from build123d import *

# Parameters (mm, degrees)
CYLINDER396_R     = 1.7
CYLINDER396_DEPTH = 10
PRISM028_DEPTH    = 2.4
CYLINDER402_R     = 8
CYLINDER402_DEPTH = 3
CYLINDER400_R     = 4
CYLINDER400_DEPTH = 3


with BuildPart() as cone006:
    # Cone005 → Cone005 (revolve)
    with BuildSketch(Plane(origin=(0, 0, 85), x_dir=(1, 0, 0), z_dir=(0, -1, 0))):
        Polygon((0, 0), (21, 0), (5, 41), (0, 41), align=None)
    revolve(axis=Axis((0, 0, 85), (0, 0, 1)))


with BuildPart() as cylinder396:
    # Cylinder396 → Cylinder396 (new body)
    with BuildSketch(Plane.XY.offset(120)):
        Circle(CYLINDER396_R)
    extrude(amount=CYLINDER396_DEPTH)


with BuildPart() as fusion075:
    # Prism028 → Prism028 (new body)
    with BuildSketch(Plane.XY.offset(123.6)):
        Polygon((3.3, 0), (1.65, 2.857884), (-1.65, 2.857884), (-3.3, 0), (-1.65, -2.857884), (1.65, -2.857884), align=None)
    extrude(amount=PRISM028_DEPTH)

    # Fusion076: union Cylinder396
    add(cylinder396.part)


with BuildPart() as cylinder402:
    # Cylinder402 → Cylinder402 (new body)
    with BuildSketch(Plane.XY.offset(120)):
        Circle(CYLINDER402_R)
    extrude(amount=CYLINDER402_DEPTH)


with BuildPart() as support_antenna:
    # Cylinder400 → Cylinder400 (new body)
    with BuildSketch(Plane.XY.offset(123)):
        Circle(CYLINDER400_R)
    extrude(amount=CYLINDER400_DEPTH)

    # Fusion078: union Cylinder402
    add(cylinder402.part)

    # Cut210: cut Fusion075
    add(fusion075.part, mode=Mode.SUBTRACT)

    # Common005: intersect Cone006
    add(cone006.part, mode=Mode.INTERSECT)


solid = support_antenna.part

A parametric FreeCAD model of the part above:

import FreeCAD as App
import Part
import Sketcher
from FreeCAD import Vector
Q = App.Units.Quantity


def add_polygon(sketch, points):
    """Adds a closed chain of lines whose ends are joined by coincident constraints."""
    first, n = sketch.GeometryCount, len(points)
    for a, b in zip(points, points[1:] + points[:1]):
        sketch.addGeometry(Part.LineSegment(App.Vector(*a, 0), App.Vector(*b, 0)), False)
    for i in range(n):
        sketch.addConstraint(Sketcher.Constraint("Coincident", first + i, 2, first + (i + 1) % n, 1))

doc = App.newDocument("Part")
body = doc.addObject("PartDesign::Body", "Body")

# Sketch on XZ plane
sketch1 = body.newObject("Sketcher::SketchObject", "Sketch")
sketch1.AttachmentSupport = (doc.getObject("XZ_Plane"), [""])
sketch1.MapMode = "FlatFace"
add_polygon(sketch1, [(0, 85), (21, 85), (5, 126), (0, 126)])  # lines 0-3
sketch1.addConstraint(Sketcher.Constraint("Horizontal", 0))
sketch1.addConstraint(Sketcher.Constraint("Horizontal", 2))
sketch1.addConstraint(Sketcher.Constraint("Vertical", 3))
sketch1.addConstraint(Sketcher.Constraint("PointOnObject", 2, 2, -2))
sketch1.addConstraint(Sketcher.Constraint("DistanceX", 0, 1, 0, 2, 21.0))
sketch1.addConstraint(Sketcher.Constraint("DistanceX", 2, 2, 2, 1, 5.0))
sketch1.addConstraint(Sketcher.Constraint("DistanceY", 3, 2, 3, 1, 41.0))
sketch1.addConstraint(Sketcher.Constraint("DistanceY", -1, 1, 0, 2, 85.0))
revolution = body.newObject("PartDesign::Revolution", "Revolution")
revolution.Profile = sketch1
revolution.ReferenceAxis = (sketch1, ["V_Axis"])
revolution.Angle = 360
body2 = doc.addObject("PartDesign::Body", "Body001")

# Sketch on XY plane
sketch2 = body2.newObject("Sketcher::SketchObject", "Sketch001")
sketch2.AttachmentSupport = (doc.getObject("XY_Plane001"), [""])
sketch2.MapMode = "FlatFace"
sketch2.AttachmentOffset = App.Placement(Vector(0, 0, 120), App.Rotation())
sketch2.addGeometry(Part.Circle(Vector(0, 0, 0), Vector(0, 0, 1), 1.7), False)
sketch2.addConstraint(Sketcher.Constraint("Coincident", 0, 3, -1, 1))
sketch2.addConstraint(Sketcher.Constraint("Diameter", 0, 3.4))
pad1 = body2.newObject("PartDesign::Pad", "Pad")
pad1.Profile = sketch2
pad1.Length = 10
body3 = doc.addObject("PartDesign::Body", "Body002")

# Sketch on XY plane
sketch3 = body3.newObject("Sketcher::SketchObject", "Sketch002")
sketch3.AttachmentSupport = (doc.getObject("XY_Plane002"), [""])
sketch3.MapMode = "FlatFace"
sketch3.AttachmentOffset = App.Placement(Vector(0, 0, 123.6), App.Rotation())
add_polygon(sketch3, [(3.3, 0), (1.6, 2.9), (-1.6, 2.9), (-3.3, 0), (-1.6, -2.9), (1.6, -2.9)])  # lines 0-5
sketch3.addConstraint(Sketcher.Constraint("Horizontal", 1))
sketch3.addConstraint(Sketcher.Constraint("Horizontal", 4))
sketch3.addConstraint(Sketcher.Constraint("Symmetric", 0, 2, 3, 2, -1, 1))
sketch3.addConstraint(Sketcher.Constraint("Symmetric", 2, 2, 5, 2, -1, 1))
sketch3.addConstraint(Sketcher.Constraint("PointOnObject", 2, 2, -1))
sketch3.addConstraint(Sketcher.Constraint("Parallel", 2, 5))
sketch3.addConstraint(Sketcher.Constraint("Vertical", 1, 2, 3, 2))
sketch3.addConstraint(Sketcher.Constraint("Angle", 0, Q("119.999999 deg")))
sketch3.addConstraint(Sketcher.Constraint("DistanceX", 1, 2, 1, 1, 3.3))
sketch3.addConstraint(Sketcher.Constraint("Distance", 0, 3.3))
pad2 = body3.newObject("PartDesign::Pad", "Pad001")
pad2.Profile = sketch3
pad2.Length = 2.4
doc.recompute()

boolean = body3.newObject("PartDesign::Boolean", "Boolean")
boolean.Type = "Fuse"
boolean.addObjects([body2])
body4 = doc.addObject("PartDesign::Body", "Body003")

# Sketch on XY plane
sketch4 = body4.newObject("Sketcher::SketchObject", "Sketch003")
sketch4.AttachmentSupport = (doc.getObject("XY_Plane003"), [""])
sketch4.MapMode = "FlatFace"
sketch4.AttachmentOffset = App.Placement(Vector(0, 0, 120), App.Rotation())
sketch4.addGeometry(Part.Circle(Vector(0, 0, 0), Vector(0, 0, 1), 8), False)
sketch4.addConstraint(Sketcher.Constraint("Coincident", 0, 3, -1, 1))
sketch4.addConstraint(Sketcher.Constraint("Diameter", 0, 16.0))
pad3 = body4.newObject("PartDesign::Pad", "Pad002")
pad3.Profile = sketch4
pad3.Length = 3
body5 = doc.addObject("PartDesign::Body", "Body004")

# Sketch on XY plane
sketch5 = body5.newObject("Sketcher::SketchObject", "Sketch004")
sketch5.AttachmentSupport = (doc.getObject("XY_Plane004"), [""])
sketch5.MapMode = "FlatFace"
sketch5.AttachmentOffset = App.Placement(Vector(0, 0, 123), App.Rotation())
sketch5.addGeometry(Part.Circle(Vector(0, 0, 0), Vector(0, 0, 1), 4), False)
sketch5.addConstraint(Sketcher.Constraint("Coincident", 0, 3, -1, 1))
sketch5.addConstraint(Sketcher.Constraint("Diameter", 0, 8.0))
pad4 = body5.newObject("PartDesign::Pad", "Pad003")
pad4.Profile = sketch5
pad4.Length = 3
doc.recompute()

boolean2 = body5.newObject("PartDesign::Boolean", "Boolean001")
boolean2.Type = "Fuse"
boolean2.addObjects([body4])
doc.recompute()

boolean3 = body5.newObject("PartDesign::Boolean", "Boolean002")
boolean3.Type = "Cut"
boolean3.addObjects([body3])
doc.recompute()

boolean4 = body5.newObject("PartDesign::Boolean", "Boolean003")
boolean4.Type = "Common"
boolean4.addObjects([body])

doc.recompute()
